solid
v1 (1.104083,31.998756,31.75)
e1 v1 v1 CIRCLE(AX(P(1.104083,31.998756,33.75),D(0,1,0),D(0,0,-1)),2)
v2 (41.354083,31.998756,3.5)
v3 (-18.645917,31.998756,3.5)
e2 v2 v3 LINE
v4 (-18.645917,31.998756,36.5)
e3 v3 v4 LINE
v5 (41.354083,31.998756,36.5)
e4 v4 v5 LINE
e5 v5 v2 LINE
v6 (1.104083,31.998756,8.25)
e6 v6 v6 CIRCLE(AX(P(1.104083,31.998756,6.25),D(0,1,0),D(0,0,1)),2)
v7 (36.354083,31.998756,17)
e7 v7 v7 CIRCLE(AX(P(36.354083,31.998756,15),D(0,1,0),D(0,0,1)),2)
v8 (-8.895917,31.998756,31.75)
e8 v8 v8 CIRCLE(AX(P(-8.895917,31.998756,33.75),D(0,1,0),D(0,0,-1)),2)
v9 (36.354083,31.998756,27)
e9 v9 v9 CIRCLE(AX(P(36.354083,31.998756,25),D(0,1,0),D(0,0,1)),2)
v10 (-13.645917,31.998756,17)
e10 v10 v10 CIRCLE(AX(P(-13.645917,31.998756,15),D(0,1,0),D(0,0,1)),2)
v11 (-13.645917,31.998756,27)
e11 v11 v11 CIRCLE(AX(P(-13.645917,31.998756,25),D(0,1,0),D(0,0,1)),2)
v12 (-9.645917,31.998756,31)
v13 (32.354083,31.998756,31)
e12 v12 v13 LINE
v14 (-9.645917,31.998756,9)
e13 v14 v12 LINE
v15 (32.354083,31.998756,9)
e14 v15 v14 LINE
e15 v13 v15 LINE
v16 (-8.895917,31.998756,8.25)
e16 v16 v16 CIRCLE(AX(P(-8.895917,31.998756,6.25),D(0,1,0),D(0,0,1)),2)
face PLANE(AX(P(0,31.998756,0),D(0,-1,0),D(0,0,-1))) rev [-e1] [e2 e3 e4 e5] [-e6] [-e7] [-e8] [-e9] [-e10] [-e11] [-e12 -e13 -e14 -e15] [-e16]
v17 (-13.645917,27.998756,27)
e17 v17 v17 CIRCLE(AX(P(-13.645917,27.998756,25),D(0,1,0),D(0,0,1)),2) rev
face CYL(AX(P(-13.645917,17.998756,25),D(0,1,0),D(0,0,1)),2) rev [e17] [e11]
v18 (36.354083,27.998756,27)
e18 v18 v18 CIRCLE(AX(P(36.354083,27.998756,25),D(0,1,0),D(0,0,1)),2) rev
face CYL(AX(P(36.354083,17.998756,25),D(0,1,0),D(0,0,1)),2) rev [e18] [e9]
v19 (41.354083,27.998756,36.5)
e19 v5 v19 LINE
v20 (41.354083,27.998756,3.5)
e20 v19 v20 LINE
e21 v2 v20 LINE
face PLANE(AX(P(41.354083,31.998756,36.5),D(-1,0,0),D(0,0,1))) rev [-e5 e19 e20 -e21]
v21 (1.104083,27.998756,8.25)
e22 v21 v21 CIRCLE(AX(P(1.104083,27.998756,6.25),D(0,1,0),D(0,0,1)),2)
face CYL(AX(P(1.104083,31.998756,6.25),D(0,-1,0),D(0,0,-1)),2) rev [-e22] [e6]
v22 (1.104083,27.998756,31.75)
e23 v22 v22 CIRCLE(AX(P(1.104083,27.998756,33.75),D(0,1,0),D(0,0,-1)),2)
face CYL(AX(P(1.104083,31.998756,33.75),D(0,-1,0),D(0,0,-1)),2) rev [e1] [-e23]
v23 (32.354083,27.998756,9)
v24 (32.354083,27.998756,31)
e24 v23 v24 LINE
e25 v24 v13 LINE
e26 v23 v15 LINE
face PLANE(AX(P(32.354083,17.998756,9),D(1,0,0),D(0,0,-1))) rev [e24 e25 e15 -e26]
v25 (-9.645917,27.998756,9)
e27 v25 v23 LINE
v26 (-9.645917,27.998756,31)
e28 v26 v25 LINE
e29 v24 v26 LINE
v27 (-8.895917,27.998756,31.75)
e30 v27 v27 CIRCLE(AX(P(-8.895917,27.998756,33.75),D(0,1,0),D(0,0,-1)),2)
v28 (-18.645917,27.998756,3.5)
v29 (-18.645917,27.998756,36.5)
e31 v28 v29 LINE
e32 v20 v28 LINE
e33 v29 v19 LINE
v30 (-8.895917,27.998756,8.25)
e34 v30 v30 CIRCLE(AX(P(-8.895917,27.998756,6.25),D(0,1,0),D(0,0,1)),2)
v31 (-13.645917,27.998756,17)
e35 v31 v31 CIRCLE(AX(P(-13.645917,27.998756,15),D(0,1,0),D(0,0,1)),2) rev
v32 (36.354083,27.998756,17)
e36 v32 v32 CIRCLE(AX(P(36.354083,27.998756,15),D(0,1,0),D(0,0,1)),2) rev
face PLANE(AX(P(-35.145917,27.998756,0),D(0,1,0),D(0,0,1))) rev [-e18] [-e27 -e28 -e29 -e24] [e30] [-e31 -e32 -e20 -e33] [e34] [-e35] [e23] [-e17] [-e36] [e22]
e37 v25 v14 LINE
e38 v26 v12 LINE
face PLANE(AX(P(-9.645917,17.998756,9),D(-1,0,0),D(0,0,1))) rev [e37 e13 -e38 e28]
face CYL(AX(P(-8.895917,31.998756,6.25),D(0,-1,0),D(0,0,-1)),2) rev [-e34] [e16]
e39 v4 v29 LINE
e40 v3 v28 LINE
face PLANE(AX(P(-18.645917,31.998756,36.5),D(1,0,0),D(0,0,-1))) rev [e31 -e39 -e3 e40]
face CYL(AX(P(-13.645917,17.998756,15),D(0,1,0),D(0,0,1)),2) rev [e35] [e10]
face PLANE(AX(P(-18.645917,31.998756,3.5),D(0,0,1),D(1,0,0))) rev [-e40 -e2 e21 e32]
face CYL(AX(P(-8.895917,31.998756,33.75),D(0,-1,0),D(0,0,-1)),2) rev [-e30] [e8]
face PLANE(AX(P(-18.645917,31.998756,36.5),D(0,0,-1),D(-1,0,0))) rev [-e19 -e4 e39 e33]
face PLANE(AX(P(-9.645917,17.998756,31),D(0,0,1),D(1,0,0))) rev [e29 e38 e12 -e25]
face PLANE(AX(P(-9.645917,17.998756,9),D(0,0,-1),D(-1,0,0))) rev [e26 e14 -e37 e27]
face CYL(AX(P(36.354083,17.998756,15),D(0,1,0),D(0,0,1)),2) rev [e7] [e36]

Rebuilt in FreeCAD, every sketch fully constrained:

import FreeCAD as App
import Part
import Sketcher
Q = App.Units.Quantity


def add_polygon(sketch, points):
    """Adds a closed chain of lines whose ends are joined by coincident constraints."""
    first, n = sketch.GeometryCount, len(points)
    for a, b in zip(points, points[1:] + points[:1]):
        sketch.addGeometry(Part.LineSegment(App.Vector(*a, 0), App.Vector(*b, 0)), False)
    for i in range(n):
        sketch.addConstraint(Sketcher.Constraint("Coincident", first + i, 2, first + (i + 1) % n, 1))

doc = App.newDocument("Part")
body = doc.addObject("PartDesign::Body", "Body")

# Sketch on XY plane
sketch1 = doc.addObject("Sketcher::SketchObject", "Sketch")
body.addObject(sketch1)
sketch1.AttachmentSupport = (doc.XY_Plane, [""])
sketch1.MapMode = "FlatFace"
add_polygon(sketch1, [(-31.1, -11), (-31.1, 24), (53.9, 24), (53.9, -11), (57.9, -11), (57.9, 28), (-35.1, 28), (-35.1, -11)])  # lines 0-7
sketch1.addConstraint([
    Sketcher.Constraint("Vertical", 0),
    Sketcher.Constraint("Horizontal", 1),
    Sketcher.Constraint("Vertical", 2),
    Sketcher.Constraint("Horizontal", 3),
    Sketcher.Constraint("Vertical", 4),
    Sketcher.Constraint("Horizontal", 5),
    Sketcher.Constraint("Vertical", 6),
    Sketcher.Constraint("Horizontal", 7),
    Sketcher.Constraint("Horizontal", 3, 2, 6, 2),
    Sketcher.Constraint("Equal", 3, 7),
    Sketcher.Constraint("DistanceX", 1, 1, 1, 2, Q("85 mm")),
    Sketcher.Constraint("DistanceX", 3, 1, 3, 2, Q("4 mm")),
    Sketcher.Constraint("DistanceY", 0, 1, 0, 2, Q("35 mm")),
    Sketcher.Constraint("DistanceY", 4, 1, 4, 2, Q("39 mm")),
    Sketcher.Constraint("DistanceX", 0, 2, -1, 1, Q("31.145917 mm")),
    Sketcher.Constraint("DistanceY", -1, 1, 0, 2, Q("23.998756 mm")),
])
pad1 = doc.addObject("PartDesign::Pad", "Pad")
body.addObject(pad1)
pad1.Profile = sketch1
pad1.Length = 40

# Sketch on YZ plane
sketch2 = doc.addObject("Sketcher::SketchObject", "Sketch001")
body.addObject(sketch2)
sketch2.AttachmentSupport = (doc.YZ_Plane, [""])
sketch2.MapMode = "FlatFace"
sketch2.AttachmentOffset = App.Placement(App.Vector(0, 0, -35.145917), App.Rotation())
sketch2.addGeometry(Part.Circle(App.Vector(8, 20, 0), App.Vector(0, 0, 1), 2.5), False)
sketch2.addConstraint([
    Sketcher.Constraint("Diameter", 0, Q("5 mm")),
    Sketcher.Constraint("DistanceY", -1, 1, 0, 3, Q("20 mm")),
    Sketcher.Constraint("DistanceX", -1, 1, 0, 3, Q("7.998756 mm")),
])
pocket1 = doc.addObject("PartDesign::Pocket", "Pocket")
body.addObject(pocket1)
pocket1.Profile = sketch2
pocket1.Type = "ThroughAll"
pocket1.Reversed = True

# Sketch on YZ plane
sketch3 = doc.addObject("Sketcher::SketchObject", "Sketch002")
body.addObject(sketch3)
sketch3.AttachmentSupport = (doc.YZ_Plane, [""])
sketch3.MapMode = "FlatFace"
sketch3.AttachmentOffset = App.Placement(App.Vector(0, 0, -35.145917), App.Rotation())
add_polygon(sketch3, [(-1, 0), (-11, 0), (-11, 40), (-1, 40)])  # lines 0-3
sketch3.addConstraint([
    Sketcher.Constraint("Horizontal", 0),
    Sketcher.Constraint("Vertical", 1),
    Sketcher.Constraint("Horizontal", 2),
    Sketcher.Constraint("Vertical", 3),
    Sketcher.Constraint("PointOnObject", 0, 2, -1),
    Sketcher.Constraint("DistanceX", 0, 2, 0, 1, Q("10 mm")),
    Sketcher.Constraint("DistanceY", 1, 1, 1, 2, Q("40 mm")),
    Sketcher.Constraint("DistanceX", 0, 2, -1, 1, Q("11.001244 mm")),
])
pocket2 = doc.addObject("PartDesign::Pocket", "Pocket001")
body.addObject(pocket2)
pocket2.Profile = sketch3
pocket2.Length = 40
pocket2.Reversed = True

# Sketch on XZ plane
sketch4 = doc.addObject("Sketcher::SketchObject", "Sketch003")
body.addObject(sketch4)
sketch4.AttachmentSupport = (doc.XZ_Plane, [""])
sketch4.MapMode = "FlatFace"
sketch4.AttachmentOffset = App.Placement(App.Vector(0, 0, -27.998756), App.Rotation())
add_polygon(sketch4, [(-10, 9), (-10, 31), (32, 31), (32, 9)])  # lines 0-3
sketch4.addConstraint([
    Sketcher.Constraint("Vertical", 0),
    Sketcher.Constraint("Horizontal", 1),
    Sketcher.Constraint("Vertical", 2),
    Sketcher.Constraint("Horizontal", 3),
    Sketcher.Constraint("DistanceX", 1, 1, 1, 2, Q("42 mm")),
    Sketcher.Constraint("DistanceY", 0, 1, 0, 2, Q("22 mm")),
    Sketcher.Constraint("DistanceY", -1, 1, 0, 2, Q("31 mm")),
    Sketcher.Constraint("DistanceX", 0, 2, -1, 1, Q("9.645917 mm")),
])
pocket3 = doc.addObject("PartDesign::Pocket", "Pocket002")
body.addObject(pocket3)
pocket3.Profile = sketch4
pocket3.Length = 10
pocket3.Reversed = True

# Sketch on XZ plane
sketch5 = doc.addObject("Sketcher::SketchObject", "Sketch004")
body.addObject(sketch5)
sketch5.AttachmentSupport = (doc.XZ_Plane, [""])
sketch5.MapMode = "FlatFace"
sketch5.AttachmentOffset = App.Placement(App.Vector(0, 0, -27.998756), App.Rotation())
sketch5.addGeometry([
    Part.Circle(App.Vector(-13.6, 15, 0), App.Vector(0, 0, 1), 2),
    Part.Circle(App.Vector(-13.6, 25, 0), App.Vector(0, 0, 1), 2),
    Part.Circle(App.Vector(36.4, 15, 0), App.Vector(0, 0, 1), 2),
    Part.Circle(App.Vector(36.4, 25, 0), App.Vector(0, 0, 1), 2),
], False)
sketch5.addConstraint([
    Sketcher.Constraint("Equal", 0, 1),
    Sketcher.Constraint("Equal", 1, 2),
    Sketcher.Constraint("Equal", 2, 3),
    Sketcher.Constraint("Horizontal", 0, 3, 2, 3),
    Sketcher.Constraint("Horizontal", 1, 3, 3, 3),
    Sketcher.Constraint("Vertical", 0, 3, 1, 3),
    Sketcher.Constraint("Vertical", 2, 3, 3, 3),
    Sketcher.Constraint("Diameter", 0, Q("4 mm")),
    Sketcher.Constraint("DistanceY", -1, 1, 0, 3, Q("15 mm")),
    Sketcher.Constraint("DistanceY", -1, 1, 1, 3, Q("25 mm")),
    Sketcher.Constraint("DistanceX", 0, 3, 2, 3, Q("50 mm")),
    Sketcher.Constraint("DistanceX", 0, 3, -1, 1, Q("13.645917 mm")),
])
pocket4 = doc.addObject("PartDesign::Pocket", "Pocket003")
body.addObject(pocket4)
pocket4.Profile = sketch5
pocket4.Length = 10
pocket4.Reversed = True

# Sketch on XZ plane
sketch6 = doc.addObject("Sketcher::SketchObject", "Sketch005")
body.addObject(sketch6)
sketch6.AttachmentSupport = (doc.XZ_Plane, [""])
sketch6.MapMode = "FlatFace"
sketch6.AttachmentOffset = App.Placement(App.Vector(0, 0, -27.998756), App.Rotation())
add_polygon(sketch6, [(-18.6, 3.5), (-18.6, 36.5), (41.4, 36.5), (41.4, 3.5)])  # lines 0-3
sketch6.addGeometry(Part.Circle(App.Vector(-8.9, 33.8, 0), App.Vector(0, 0, 1), 2), False)  # 4
sketch6.addGeometry(Part.Circle(App.Vector(1.1, 33.8, 0), App.Vector(0, 0, 1), 2), False)  # 5
sketch6.addGeometry(Part.Circle(App.Vector(-13.6, 25, 0), App.Vector(0, 0, 1), 2), False)  # 6
sketch6.addGeometry(Part.Circle(App.Vector(36.4, 25, 0), App.Vector(0, 0, 1), 2), False)  # 7
sketch6.addGeometry(Part.Circle(App.Vector(-13.6, 15, 0), App.Vector(0, 0, 1), 2), False)  # 8
sketch6.addGeometry(Part.Circle(App.Vector(-8.9, 6.2, 0), App.Vector(0, 0, 1), 2), False)  # 9
sketch6.addGeometry(Part.Circle(App.Vector(1.1, 6.2, 0), App.Vector(0, 0, 1), 2), False)  # 10
add_polygon(sketch6, [(32.4, 31), (-9.6, 31), (-9.6, 9), (32.4, 9)])  # lines 11-14
sketch6.addGeometry(Part.Circle(App.Vector(36.4, 15, 0), App.Vector(0, 0, 1), 2), False)  # 15
sketch6.addConstraint([
    Sketcher.Constraint("Vertical", 0),
    Sketcher.Constraint("Horizontal", 1),
    Sketcher.Constraint("Vertical", 2),
    Sketcher.Constraint("Horizontal", 3),
    Sketcher.Constraint("Horizontal", 11),
    Sketcher.Constraint("Vertical", 12),
    Sketcher.Constraint("Horizontal", 13),
    Sketcher.Constraint("Vertical", 14),
    Sketcher.Constraint("Equal", 4, 5),
    Sketcher.Constraint("Equal", 5, 6),
    Sketcher.Constraint("Equal", 6, 7),
    Sketcher.Constraint("Equal", 7, 8),
    Sketcher.Constraint("Equal", 8, 9),
    Sketcher.Constraint("Equal", 9, 10),
    Sketcher.Constraint("Equal", 10, 15),
    Sketcher.Constraint("Horizontal", 4, 3, 5, 3),
    Sketcher.Constraint("Horizontal", 6, 3, 7, 3),
    Sketcher.Constraint("Horizontal", 9, 3, 10, 3),
    Sketcher.Constraint("Horizontal", 8, 3, 15, 3),
    Sketcher.Constraint("Vertical", 6, 3, 8, 3),
    Sketcher.Constraint("Vertical", 4, 3, 9, 3),
    Sketcher.Constraint("Vertical", 5, 3, 10, 3),
    Sketcher.Constraint("Vertical", 7, 3, 15, 3),
    Sketcher.Constraint("Diameter", 4, Q("4 mm")),
    Sketcher.Constraint("DistanceX", 1, 1, 1, 2, Q("60 mm")),
    Sketcher.Constraint("DistanceX", 11, 2, 11, 1, Q("42 mm")),
    Sketcher.Constraint("DistanceY", 0, 1, 0, 2, Q("33 mm")),
    Sketcher.Constraint("DistanceY", 12, 2, 12, 1, Q("22 mm")),
    Sketcher.Constraint("DistanceY", -1, 1, 6, 3, Q("25 mm")),
    Sketcher.Constraint("DistanceY", -1, 1, 8, 3, Q("15 mm")),
    Sketcher.Constraint("DistanceY", -1, 1, 11, 2, Q("31 mm")),
    Sketcher.Constraint("DistanceX", 4, 3, 5, 3, Q("10 mm")),
    Sketcher.Constraint("DistanceX", 6, 3, 7, 3, Q("50 mm")),
    Sketcher.Constraint("DistanceX", 0, 2, 6, 3, Q("5 mm")),
    Sketcher.Constraint("DistanceX", 6, 3, 11, 2, Q("4 mm")),
    Sketcher.Constraint("DistanceY", -1, 1, 0, 2, Q("36.5 mm")),
    Sketcher.Constraint("DistanceY", 9, 3, 4, 3, Q("27.5 mm")),
    Sketcher.Constraint("DistanceY", -1, 1, 4, 3, Q("33.75 mm")),
    Sketcher.Constraint("DistanceX", 6, 3, 4, 3, Q("4.75 mm")),
    Sketcher.Constraint("DistanceX", 4, 3, -1, 1, Q("8.895917 mm")),
])
pad2 = doc.addObject("PartDesign::Pad", "Pad001")
body.addObject(pad2)
pad2.Profile = sketch6
pad2.Length = 4
pad2.Reversed = True

# Sketch on XY plane
sketch7 = doc.addObject("Sketcher::SketchObject", "Sketch006")
body.addObject(sketch7)
sketch7.AttachmentSupport = (doc.XY_Plane, [""])
sketch7.MapMode = "FlatFace"
sketch7.AttachmentOffset = App.Placement(App.Vector(0, 0, 40), App.Rotation())
add_polygon(sketch7, [(-35, 28), (-35, -29), (65, -29), (65, 28)])  # lines 0-3
sketch7.addConstraint([
    Sketcher.Constraint("Vertical", 0),
    Sketcher.Constraint("Horizontal", 1),
    Sketcher.Constraint("Vertical", 2),
    Sketcher.Constraint("Horizontal", 3),
    Sketcher.Constraint("DistanceY", 0, 2, 0, 1, Q("56.811688 mm")),
    Sketcher.Constraint("DistanceX", 1, 1, 1, 2, Q("99.924242 mm")),
    Sketcher.Constraint("DistanceX", 0, 2, -1, 1, Q("35.145917 mm")),
    Sketcher.Constraint("DistanceY", 0, 2, -1, 1, Q("28.812932 mm")),
])
pocket5 = doc.addObject("PartDesign::Pocket", "Pocket004")
body.addObject(pocket5)
pocket5.Profile = sketch7
pocket5.Type = "ThroughAll"

doc.recompute()
